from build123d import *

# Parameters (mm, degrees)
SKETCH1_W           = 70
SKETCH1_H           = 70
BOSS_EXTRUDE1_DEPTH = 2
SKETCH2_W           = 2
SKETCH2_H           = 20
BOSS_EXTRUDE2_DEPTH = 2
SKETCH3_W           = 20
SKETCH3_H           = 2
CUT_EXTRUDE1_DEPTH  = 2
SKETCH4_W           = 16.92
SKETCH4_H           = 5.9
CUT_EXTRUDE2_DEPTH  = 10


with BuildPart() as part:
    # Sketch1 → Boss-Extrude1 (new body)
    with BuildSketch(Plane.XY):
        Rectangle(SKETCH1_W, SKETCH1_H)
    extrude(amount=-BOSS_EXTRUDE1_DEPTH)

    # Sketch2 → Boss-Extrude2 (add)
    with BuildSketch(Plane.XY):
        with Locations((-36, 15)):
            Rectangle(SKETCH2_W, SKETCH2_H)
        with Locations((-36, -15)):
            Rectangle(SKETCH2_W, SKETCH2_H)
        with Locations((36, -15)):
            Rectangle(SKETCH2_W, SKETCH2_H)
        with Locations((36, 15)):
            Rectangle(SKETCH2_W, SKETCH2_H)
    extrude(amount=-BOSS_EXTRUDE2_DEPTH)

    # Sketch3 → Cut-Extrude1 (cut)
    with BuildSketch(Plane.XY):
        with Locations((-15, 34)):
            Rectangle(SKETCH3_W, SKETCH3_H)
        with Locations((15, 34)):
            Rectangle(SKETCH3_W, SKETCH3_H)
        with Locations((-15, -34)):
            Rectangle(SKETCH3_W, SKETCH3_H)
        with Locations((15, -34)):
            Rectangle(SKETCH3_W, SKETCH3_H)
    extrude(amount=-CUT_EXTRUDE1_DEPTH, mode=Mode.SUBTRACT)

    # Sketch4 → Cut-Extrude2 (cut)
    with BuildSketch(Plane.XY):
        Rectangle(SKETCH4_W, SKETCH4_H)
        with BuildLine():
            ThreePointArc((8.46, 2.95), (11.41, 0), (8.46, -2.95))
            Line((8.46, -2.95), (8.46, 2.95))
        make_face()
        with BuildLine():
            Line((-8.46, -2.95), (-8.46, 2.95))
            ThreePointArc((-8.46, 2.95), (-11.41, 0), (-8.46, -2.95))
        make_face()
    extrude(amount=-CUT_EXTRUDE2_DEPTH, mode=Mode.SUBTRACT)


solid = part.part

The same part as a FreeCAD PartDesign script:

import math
import FreeCAD as App
import Part
import Sketcher

doc = App.newDocument("Part")
body = doc.addObject("PartDesign::Body", "Body")

# Sketch on XY plane
sketch1 = body.newObject("Sketcher::SketchObject", "Sketch")
sketch1.AttachmentSupport = (doc.getObject("XY_Plane"), [""])
sketch1.MapMode = "FlatFace"
sketch1.addGeometry(Part.LineSegment(App.Vector(-35, 35, 0), App.Vector(-35, -35, 0)), False)
sketch1.addGeometry(Part.LineSegment(App.Vector(-35, -35, 0), App.Vector(35, -35, 0)), False)
sketch1.addGeometry(Part.LineSegment(App.Vector(35, -35, 0), App.Vector(35, 35, 0)), False)
sketch1.addGeometry(Part.LineSegment(App.Vector(35, 35, 0), App.Vector(-35, 35, 0)), False)
sketch1.addConstraint(Sketcher.Constraint("Coincident", 0, 2, 1, 1))
sketch1.addConstraint(Sketcher.Constraint("Coincident", 1, 2, 2, 1))
sketch1.addConstraint(Sketcher.Constraint("Coincident", 2, 2, 3, 1))
sketch1.addConstraint(Sketcher.Constraint("Coincident", 3, 2, 0, 1))
sketch1.addConstraint(Sketcher.Constraint("Vertical", 0))
sketch1.addConstraint(Sketcher.Constraint("Horizontal", 1))
sketch1.addConstraint(Sketcher.Constraint("Vertical", 2))
sketch1.addConstraint(Sketcher.Constraint("Horizontal", 3))
sketch1.addConstraint(Sketcher.Constraint("Symmetric", 0, 2, 2, 2, -1, 1))
sketch1.addConstraint(Sketcher.Constraint("Equal", 3, 0))
sketch1.addConstraint(Sketcher.Constraint("DistanceX", 1, 1, 1, 2, 70.0))
pad1 = body.newObject("PartDesign::Pad", "Pad")
pad1.Profile = sketch1
pad1.Length = 2
pad1.Reversed = True

# Sketch on XY plane
sketch2 = body.newObject("Sketcher::SketchObject", "Sketch001")
sketch2.AttachmentSupport = (doc.getObject("XY_Plane"), [""])
sketch2.MapMode = "FlatFace"
sketch2.addGeometry(Part.LineSegment(App.Vector(-37, 25, 0), App.Vector(-37, 5, 0)), False)
sketch2.addGeometry(Part.LineSegment(App.Vector(-37, 5, 0), App.Vector(-35, 5, 0)), False)
sketch2.addGeometry(Part.LineSegment(App.Vector(-35, 5, 0), App.Vector(-35, 25, 0)), False)
sketch2.addGeometry(Part.LineSegment(App.Vector(-35, 25, 0), App.Vector(-37, 25, 0)), False)
sketch2.addGeometry(Part.LineSegment(App.Vector(-37, -5, 0), App.Vector(-37, -25, 0)), False)
sketch2.addGeometry(Part.LineSegment(App.Vector(-37, -25, 0), App.Vector(-35, -25, 0)), False)
sketch2.addGeometry(Part.LineSegment(App.Vector(-35, -25, 0), App.Vector(-35, -5, 0)), False)
sketch2.addGeometry(Part.LineSegment(App.Vector(-35, -5, 0), App.Vector(-37, -5, 0)), False)
sketch2.addGeometry(Part.LineSegment(App.Vector(35, -5, 0), App.Vector(35, -25, 0)), False)
sketch2.addGeometry(Part.LineSegment(App.Vector(35, -25, 0), App.Vector(37, -25, 0)), False)
sketch2.addGeometry(Part.LineSegment(App.Vector(37, -25, 0), App.Vector(37, -5, 0)), False)
sketch2.addGeometry(Part.LineSegment(App.Vector(37, -5, 0), App.Vector(35, -5, 0)), False)
sketch2.addGeometry(Part.LineSegment(App.Vector(35, 25, 0), App.Vector(35, 5, 0)), False)
sketch2.addGeometry(Part.LineSegment(App.Vector(35, 5, 0), App.Vector(37, 5, 0)), False)
sketch2.addGeometry(Part.LineSegment(App.Vector(37, 5, 0), App.Vector(37, 25, 0)), False)
sketch2.addGeometry(Part.LineSegment(App.Vector(37, 25, 0), App.Vector(35, 25, 0)), False)
sketch2.addConstraint(Sketcher.Constraint("Coincident", 0, 2, 1, 1))
sketch2.addConstraint(Sketcher.Constraint("Coincident", 1, 2, 2, 1))
sketch2.addConstraint(Sketcher.Constraint("Coincident", 2, 2, 3, 1))
sketch2.addConstraint(Sketcher.Constraint("Coincident", 3, 2, 0, 1))
sketch2.addConstraint(Sketcher.Constraint("Coincident", 4, 2, 5, 1))
sketch2.addConstraint(Sketcher.Constraint("Coincident", 5, 2, 6, 1))
sketch2.addConstraint(Sketcher.Constraint("Coincident", 6, 2, 7, 1))
sketch2.addConstraint(Sketcher.Constraint("Coincident", 7, 2, 4, 1))
sketch2.addConstraint(Sketcher.Constraint("Coincident", 8, 2, 9, 1))
sketch2.addConstraint(Sketcher.Constraint("Coincident", 9, 2, 10, 1))
sketch2.addConstraint(Sketcher.Constraint("Coincident", 10, 2, 11, 1))
sketch2.addConstraint(Sketcher.Constraint("Coincident", 11, 2, 8, 1))
sketch2.addConstraint(Sketcher.Constraint("Coincident", 12, 2, 13, 1))
sketch2.addConstraint(Sketcher.Constraint("Coincident", 13, 2, 14, 1))
sketch2.addConstraint(Sketcher.Constraint("Coincident", 14, 2, 15, 1))
sketch2.addConstraint(Sketcher.Constraint("Coincident", 15, 2, 12, 1))
sketch2.addConstraint(Sketcher.Constraint("Vertical", 0))
sketch2.addConstraint(Sketcher.Constraint("Horizontal", 1))
sketch2.addConstraint(Sketcher.Constraint("Vertical", 2))
sketch2.addConstraint(Sketcher.Constraint("Horizontal", 3))
sketch2.addConstraint(Sketcher.Constraint("Vertical", 4))
sketch2.addConstraint(Sketcher.Constraint("Horizontal", 5))
sketch2.addConstraint(Sketcher.Constraint("Vertical", 6))
sketch2.addConstraint(Sketcher.Constraint("Horizontal", 7))
sketch2.addConstraint(Sketcher.Constraint("Vertical", 8))
sketch2.addConstraint(Sketcher.Constraint("Horizontal", 9))
sketch2.addConstraint(Sketcher.Constraint("Vertical", 10))
sketch2.addConstraint(Sketcher.Constraint("Horizontal", 11))
sketch2.addConstraint(Sketcher.Constraint("Vertical", 12))
sketch2.addConstraint(Sketcher.Constraint("Horizontal", 13))
sketch2.addConstraint(Sketcher.Constraint("Vertical", 14))
sketch2.addConstraint(Sketcher.Constraint("Horizontal", 15))
sketch2.addConstraint(Sketcher.Constraint("Symmetric", 2, 2, 8, 2, -1, 1))
sketch2.addConstraint(Sketcher.Constraint("Symmetric", 0, 2, 10, 2, -1, 1))
sketch2.addConstraint(Sketcher.Constraint("Symmetric", 6, 2, 12, 2, -1, 1))
sketch2.addConstraint(Sketcher.Constraint("Symmetric", 4, 2, 14, 2, -1, 1))
sketch2.addConstraint(Sketcher.Constraint("Symmetric", 5, 2, 8, 2, -2))
sketch2.addConstraint(Sketcher.Constraint("Symmetric", 7, 2, 10, 2, -2))
sketch2.addConstraint(Sketcher.Constraint("DistanceX", 1, 1, 1, 2, 2.0))
sketch2.addConstraint(Sketcher.Constraint("DistanceY", 0, 2, 0, 1, 20.0))
sketch2.addConstraint(Sketcher.Constraint("DistanceX", 0, 2, -1, 1, 37.0))
sketch2.addConstraint(Sketcher.Constraint("DistanceY", -1, 1, 0, 2, 5.0))
pad2 = body.newObject("PartDesign::Pad", "Pad001")
pad2.Profile = sketch2
pad2.Length = 2
pad2.Reversed = True

# Sketch on XY plane
sketch3 = body.newObject("Sketcher::SketchObject", "Sketch002")
sketch3.AttachmentSupport = (doc.getObject("XY_Plane"), [""])
sketch3.MapMode = "FlatFace"
sketch3.addGeometry(Part.LineSegment(App.Vector(-25, 35, 0), App.Vector(-25, 33, 0)), False)
sketch3.addGeometry(Part.LineSegment(App.Vector(-25, 33, 0), App.Vector(-5, 33, 0)), False)
sketch3.addGeometry(Part.LineSegment(App.Vector(-5, 33, 0), App.Vector(-5, 35, 0)), False)
sketch3.addGeometry(Part.LineSegment(App.Vector(-5, 35, 0), App.Vector(-25, 35, 0)), False)
sketch3.addGeometry(Part.LineSegment(App.Vector(5, 35, 0), App.Vector(5, 33, 0)), False)
sketch3.addGeometry(Part.LineSegment(App.Vector(5, 33, 0), App.Vector(25, 33, 0)), False)
sketch3.addGeometry(Part.LineSegment(App.Vector(25, 33, 0), App.Vector(25, 35, 0)), False)
sketch3.addGeometry(Part.LineSegment(App.Vector(25, 35, 0), App.Vector(5, 35, 0)), False)
sketch3.addGeometry(Part.LineSegment(App.Vector(-25, -33, 0), App.Vector(-25, -35, 0)), False)
sketch3.addGeometry(Part.LineSegment(App.Vector(-25, -35, 0), App.Vector(-5, -35, 0)), False)
sketch3.addGeometry(Part.LineSegment(App.Vector(-5, -35, 0), App.Vector(-5, -33, 0)), False)
sketch3.addGeometry(Part.LineSegment(App.Vector(-5, -33, 0), App.Vector(-25, -33, 0)), False)
sketch3.addGeometry(Part.LineSegment(App.Vector(5, -33, 0), App.Vector(5, -35, 0)), False)
sketch3.addGeometry(Part.LineSegment(App.Vector(5, -35, 0), App.Vector(25, -35, 0)), False)
sketch3.addGeometry(Part.LineSegment(App.Vector(25, -35, 0), App.Vector(25, -33, 0)), False)
sketch3.addGeometry(Part.LineSegment(App.Vector(25, -33, 0), App.Vector(5, -33, 0)), False)
sketch3.addConstraint(Sketcher.Constraint("Coincident", 0, 2, 1, 1))
sketch3.addConstraint(Sketcher.Constraint("Coincident", 1, 2, 2, 1))
sketch3.addConstraint(Sketcher.Constraint("Coincident", 2, 2, 3, 1))
sketch3.addConstraint(Sketcher.Constraint("Coincident", 3, 2, 0, 1))
sketch3.addConstraint(Sketcher.Constraint("Coincident", 4, 2, 5, 1))
sketch3.addConstraint(Sketcher.Constraint("Coincident", 5, 2, 6, 1))
sketch3.addConstraint(Sketcher.Constraint("Coincident", 6, 2, 7, 1))
sketch3.addConstraint(Sketcher.Constraint("Coincident", 7, 2, 4, 1))
sketch3.addConstraint(Sketcher.Constraint("Coincident", 8, 2, 9, 1))
sketch3.addConstraint(Sketcher.Constraint("Coincident", 9, 2, 10, 1))
sketch3.addConstraint(Sketcher.Constraint("Coincident", 10, 2, 11, 1))
sketch3.addConstraint(Sketcher.Constraint("Coincident", 11, 2, 8, 1))
sketch3.addConstraint(Sketcher.Constraint("Coincident", 12, 2, 13, 1))
sketch3.addConstraint(Sketcher.Constraint("Coincident", 13, 2, 14, 1))
sketch3.addConstraint(Sketcher.Constraint("Coincident", 14, 2, 15, 1))
sketch3.addConstraint(Sketcher.Constraint("Coincident", 15, 2, 12, 1))
sketch3.addConstraint(Sketcher.Constraint("Vertical", 0))
sketch3.addConstraint(Sketcher.Constraint("Horizontal", 1))
sketch3.addConstraint(Sketcher.Constraint("Vertical", 2))
sketch3.addConstraint(Sketcher.Constraint("Horizontal", 3))
sketch3.addConstraint(Sketcher.Constraint("Vertical", 4))
sketch3.addConstraint(Sketcher.Constraint("Horizontal", 5))
sketch3.addConstraint(Sketcher.Constraint("Vertical", 6))
sketch3.addConstraint(Sketcher.Constraint("Horizontal", 7))
sketch3.addConstraint(Sketcher.Constraint("Vertical", 8))
sketch3.addConstraint(Sketcher.Constraint("Horizontal", 9))
sketch3.addConstraint(Sketcher.Constraint("Vertical", 10))
sketch3.addConstraint(Sketcher.Constraint("Horizontal", 11))
sketch3.addConstraint(Sketcher.Constraint("Vertical", 12))
sketch3.addConstraint(Sketcher.Constraint("Horizontal", 13))
sketch3.addConstraint(Sketcher.Constraint("Vertical", 14))
sketch3.addConstraint(Sketcher.Constraint("Horizontal", 15))
sketch3.addConstraint(Sketcher.Constraint("Symmetric", 6, 2, 8, 2, -1, 1))
sketch3.addConstraint(Sketcher.Constraint("Symmetric", 4, 2, 10, 2, -1, 1))
sketch3.addConstraint(Sketcher.Constraint("Symmetric", 2, 2, 12, 2, -1, 1))
sketch3.addConstraint(Sketcher.Constraint("Symmetric", 0, 2, 14, 2, -1, 1))
sketch3.addConstraint(Sketcher.Constraint("Symmetric", 1, 2, 4, 2, -2))
sketch3.addConstraint(Sketcher.Constraint("Symmetric", 3, 2, 6, 2, -2))
sketch3.addConstraint(Sketcher.Constraint("DistanceX", 1, 1, 1, 2, 20.0))
sketch3.addConstraint(Sketcher.Constraint("DistanceY", 0, 2, 0, 1, 2.0))
sketch3.addConstraint(Sketcher.Constraint("DistanceX", 0, 2, -1, 1, 25.0))
sketch3.addConstraint(Sketcher.Constraint("DistanceY", -1, 1, 0, 2, 33.0))
pocket1 = body.newObject("PartDesign::Pocket", "Pocket")
pocket1.Profile = sketch3
pocket1.Length = 2

# Sketch on XY plane
sketch4 = body.newObject("Sketcher::SketchObject", "Sketch003")
sketch4.AttachmentSupport = (doc.getObject("XY_Plane"), [""])
sketch4.MapMode = "FlatFace"
sketch4.addGeometry(Part.LineSegment(App.Vector(-8.5, -3, 0), App.Vector(8.5, -3, 0)), False)
sketch4.addGeometry(Part.ArcOfCircle(Part.Circle(App.Vector(8.5, 0, 0), App.Vector(0, 0, 1), 3), math.radians(-90), math.radians(90)), False)
sketch4.addGeometry(Part.LineSegment(App.Vector(8.5, 3, 0), App.Vector(-8.5, 3, 0)), False)
sketch4.addGeometry(Part.ArcOfCircle(Part.Circle(App.Vector(-8.5, 0, 0), App.Vector(0, 0, 1), 3), math.radians(90), math.radians(270)), False)
sketch4.addConstraint(Sketcher.Constraint("Tangent", 0, 2, 1, 1))
sketch4.addConstraint(Sketcher.Constraint("Tangent", 1, 2, 2, 1))
sketch4.addConstraint(Sketcher.Constraint("Tangent", 2, 2, 3, 1))
sketch4.addConstraint(Sketcher.Constraint("Tangent", 3, 2, 0, 1))
sketch4.addConstraint(Sketcher.Constraint("Horizontal", 0))
sketch4.addConstraint(Sketcher.Constraint("Horizontal", 2))
sketch4.addConstraint(Sketcher.Constraint("Symmetric", 1, 3, 3, 3, -1, 1))
sketch4.addConstraint(Sketcher.Constraint("Radius", 1, 2.95))
sketch4.addConstraint(Sketcher.Constraint("DistanceX", 0, 1, 0, 2, 16.92))
pocket2 = body.newObject("PartDesign::Pocket", "Pocket001")
pocket2.Profile = sketch4
pocket2.Length = 10

doc.recompute()
